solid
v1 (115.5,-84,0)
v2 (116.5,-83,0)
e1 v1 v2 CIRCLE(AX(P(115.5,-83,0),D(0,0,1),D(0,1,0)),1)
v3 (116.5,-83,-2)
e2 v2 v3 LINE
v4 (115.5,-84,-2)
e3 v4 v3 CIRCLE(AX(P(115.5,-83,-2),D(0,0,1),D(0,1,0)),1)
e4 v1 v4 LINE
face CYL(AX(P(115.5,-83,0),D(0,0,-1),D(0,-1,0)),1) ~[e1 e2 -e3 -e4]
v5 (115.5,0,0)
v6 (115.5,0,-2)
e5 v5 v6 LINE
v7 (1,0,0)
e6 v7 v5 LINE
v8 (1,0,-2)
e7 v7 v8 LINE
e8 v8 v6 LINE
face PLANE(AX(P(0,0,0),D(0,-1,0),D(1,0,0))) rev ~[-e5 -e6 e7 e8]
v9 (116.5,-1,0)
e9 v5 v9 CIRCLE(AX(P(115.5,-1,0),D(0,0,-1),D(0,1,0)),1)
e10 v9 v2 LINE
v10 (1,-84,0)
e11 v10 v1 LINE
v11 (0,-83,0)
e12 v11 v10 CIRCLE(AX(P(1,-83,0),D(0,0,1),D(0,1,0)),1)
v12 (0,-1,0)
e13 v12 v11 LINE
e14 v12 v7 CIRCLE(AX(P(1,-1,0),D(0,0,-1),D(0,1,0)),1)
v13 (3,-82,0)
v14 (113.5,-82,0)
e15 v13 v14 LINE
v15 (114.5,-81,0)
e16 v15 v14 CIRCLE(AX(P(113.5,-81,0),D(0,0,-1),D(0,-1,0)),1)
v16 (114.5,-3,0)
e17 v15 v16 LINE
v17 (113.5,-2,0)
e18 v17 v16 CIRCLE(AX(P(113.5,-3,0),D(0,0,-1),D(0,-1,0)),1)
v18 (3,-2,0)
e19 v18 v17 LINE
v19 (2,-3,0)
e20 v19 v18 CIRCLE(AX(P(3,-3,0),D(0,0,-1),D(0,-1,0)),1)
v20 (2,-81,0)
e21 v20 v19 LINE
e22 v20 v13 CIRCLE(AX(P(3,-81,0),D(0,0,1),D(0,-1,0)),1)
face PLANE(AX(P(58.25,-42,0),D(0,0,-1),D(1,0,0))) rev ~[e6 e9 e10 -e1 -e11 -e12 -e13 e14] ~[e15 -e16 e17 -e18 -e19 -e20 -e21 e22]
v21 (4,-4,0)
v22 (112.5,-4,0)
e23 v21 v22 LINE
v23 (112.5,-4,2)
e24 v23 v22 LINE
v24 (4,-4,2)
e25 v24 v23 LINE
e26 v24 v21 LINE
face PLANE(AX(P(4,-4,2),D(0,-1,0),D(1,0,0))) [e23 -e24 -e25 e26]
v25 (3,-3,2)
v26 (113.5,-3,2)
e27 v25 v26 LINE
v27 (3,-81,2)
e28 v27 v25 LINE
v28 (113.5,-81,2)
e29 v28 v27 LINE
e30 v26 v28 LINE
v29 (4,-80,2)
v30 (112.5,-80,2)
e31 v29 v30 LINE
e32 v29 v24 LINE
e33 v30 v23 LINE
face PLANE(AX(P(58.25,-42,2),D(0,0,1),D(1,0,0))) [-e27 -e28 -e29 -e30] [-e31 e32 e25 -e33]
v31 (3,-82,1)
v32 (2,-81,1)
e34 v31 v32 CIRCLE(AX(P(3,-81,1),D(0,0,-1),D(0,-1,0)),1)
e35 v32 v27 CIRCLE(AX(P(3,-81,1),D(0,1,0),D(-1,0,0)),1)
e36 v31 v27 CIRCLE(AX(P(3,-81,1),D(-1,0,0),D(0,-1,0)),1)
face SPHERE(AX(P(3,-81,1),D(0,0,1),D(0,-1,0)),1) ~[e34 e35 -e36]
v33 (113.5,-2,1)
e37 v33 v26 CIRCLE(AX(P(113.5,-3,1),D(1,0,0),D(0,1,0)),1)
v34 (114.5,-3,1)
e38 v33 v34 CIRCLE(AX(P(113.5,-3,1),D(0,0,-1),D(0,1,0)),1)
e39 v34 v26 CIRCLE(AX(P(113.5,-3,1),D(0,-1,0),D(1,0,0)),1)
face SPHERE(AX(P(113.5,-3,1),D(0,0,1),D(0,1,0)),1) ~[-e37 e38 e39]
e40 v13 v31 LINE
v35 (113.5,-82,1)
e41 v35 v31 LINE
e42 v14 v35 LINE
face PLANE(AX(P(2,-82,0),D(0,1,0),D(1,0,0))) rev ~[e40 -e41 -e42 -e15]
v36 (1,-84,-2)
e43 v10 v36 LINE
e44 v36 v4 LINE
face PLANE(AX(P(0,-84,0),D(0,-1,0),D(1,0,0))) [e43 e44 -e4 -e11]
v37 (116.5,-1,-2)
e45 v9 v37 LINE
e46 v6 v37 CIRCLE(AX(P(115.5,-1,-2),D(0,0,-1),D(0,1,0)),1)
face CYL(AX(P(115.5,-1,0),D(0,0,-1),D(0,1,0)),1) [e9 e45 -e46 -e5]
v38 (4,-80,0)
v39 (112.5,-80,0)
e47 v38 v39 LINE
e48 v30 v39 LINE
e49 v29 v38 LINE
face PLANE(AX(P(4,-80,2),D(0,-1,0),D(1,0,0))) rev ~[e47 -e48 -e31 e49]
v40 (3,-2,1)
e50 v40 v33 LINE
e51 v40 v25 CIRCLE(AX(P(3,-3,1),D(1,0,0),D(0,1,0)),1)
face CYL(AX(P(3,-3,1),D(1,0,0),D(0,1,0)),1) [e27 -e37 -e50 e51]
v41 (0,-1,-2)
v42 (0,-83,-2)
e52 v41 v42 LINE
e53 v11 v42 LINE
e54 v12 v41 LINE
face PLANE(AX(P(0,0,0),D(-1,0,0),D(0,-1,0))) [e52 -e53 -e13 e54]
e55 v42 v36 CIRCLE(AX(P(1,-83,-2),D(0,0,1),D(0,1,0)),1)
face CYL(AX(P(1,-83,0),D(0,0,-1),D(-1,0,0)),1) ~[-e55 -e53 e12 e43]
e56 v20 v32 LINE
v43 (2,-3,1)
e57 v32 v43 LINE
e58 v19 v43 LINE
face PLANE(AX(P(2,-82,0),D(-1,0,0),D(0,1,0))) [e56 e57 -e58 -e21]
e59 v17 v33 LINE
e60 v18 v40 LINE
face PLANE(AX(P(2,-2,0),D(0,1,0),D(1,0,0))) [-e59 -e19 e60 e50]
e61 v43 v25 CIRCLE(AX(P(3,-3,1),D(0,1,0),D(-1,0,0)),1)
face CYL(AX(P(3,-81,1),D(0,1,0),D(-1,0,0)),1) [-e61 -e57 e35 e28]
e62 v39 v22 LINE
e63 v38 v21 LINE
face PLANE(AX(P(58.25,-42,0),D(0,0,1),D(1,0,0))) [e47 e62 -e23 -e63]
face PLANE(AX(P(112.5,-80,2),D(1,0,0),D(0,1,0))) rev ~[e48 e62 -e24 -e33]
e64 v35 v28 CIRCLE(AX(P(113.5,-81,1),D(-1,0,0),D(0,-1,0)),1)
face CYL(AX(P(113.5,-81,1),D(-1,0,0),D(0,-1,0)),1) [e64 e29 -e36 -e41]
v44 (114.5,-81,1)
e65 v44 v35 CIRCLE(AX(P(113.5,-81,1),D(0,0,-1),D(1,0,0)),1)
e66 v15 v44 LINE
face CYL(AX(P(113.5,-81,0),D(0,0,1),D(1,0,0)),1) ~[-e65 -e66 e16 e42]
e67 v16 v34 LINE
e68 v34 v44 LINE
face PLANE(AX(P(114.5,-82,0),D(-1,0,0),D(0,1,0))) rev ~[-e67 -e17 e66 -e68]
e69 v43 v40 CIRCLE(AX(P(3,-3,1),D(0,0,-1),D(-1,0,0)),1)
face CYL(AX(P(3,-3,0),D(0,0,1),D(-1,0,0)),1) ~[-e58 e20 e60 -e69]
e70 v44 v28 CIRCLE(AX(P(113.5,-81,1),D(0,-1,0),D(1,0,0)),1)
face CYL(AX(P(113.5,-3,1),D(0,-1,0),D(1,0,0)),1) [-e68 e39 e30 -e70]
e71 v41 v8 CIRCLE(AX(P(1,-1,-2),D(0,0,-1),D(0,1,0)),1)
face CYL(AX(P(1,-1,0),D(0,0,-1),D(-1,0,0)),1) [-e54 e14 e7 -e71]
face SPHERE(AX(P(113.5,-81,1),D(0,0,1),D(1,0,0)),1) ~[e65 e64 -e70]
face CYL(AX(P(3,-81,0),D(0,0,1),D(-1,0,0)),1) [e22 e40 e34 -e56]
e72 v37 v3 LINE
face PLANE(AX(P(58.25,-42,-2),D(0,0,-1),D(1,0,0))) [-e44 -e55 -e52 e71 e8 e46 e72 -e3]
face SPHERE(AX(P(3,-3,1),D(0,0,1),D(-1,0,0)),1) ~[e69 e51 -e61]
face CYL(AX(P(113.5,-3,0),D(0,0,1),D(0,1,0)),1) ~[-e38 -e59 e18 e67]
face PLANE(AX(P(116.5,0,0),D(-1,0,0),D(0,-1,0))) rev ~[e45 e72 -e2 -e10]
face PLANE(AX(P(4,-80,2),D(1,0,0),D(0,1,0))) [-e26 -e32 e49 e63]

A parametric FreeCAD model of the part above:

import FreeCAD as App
import Part
import Sketcher

V = App.Vector
Q = App.Units.Quantity


def edges_at(feature, points):
    """Names of the edges that pass closest to the given points."""
    edges = feature.Shape.Edges
    near = lambda p: min(range(len(edges)), key=lambda i: edges[i].distToShape(Part.Vertex(*p))[0])
    return sorted({f"Edge{near(p) + 1}" for p in points})

doc = App.newDocument("Part")
body = doc.addObject("PartDesign::Body", "Body")

# Sketch on XY plane
sketch1 = body.newObject("Sketcher::SketchObject", "Sketch")
sketch1.AttachmentSupport = (doc.getObject("XY_Plane"), [""])
sketch1.MapMode = "FlatFace"
sketch1.addGeometry(Part.LineSegment(V(0, -84, 0), V(0, 0, 0)), False)
sketch1.addGeometry(Part.LineSegment(V(0, 0, 0), V(116, 0, 0)), False)
sketch1.addGeometry(Part.LineSegment(V(116, 0, 0), V(116, -84, 0)), False)
sketch1.addGeometry(Part.LineSegment(V(116, -84, 0), V(0, -84, 0)), False)
sketch1.addConstraint(Sketcher.Constraint("Coincident", 0, 2, 1, 1))
sketch1.addConstraint(Sketcher.Constraint("Coincident", 1, 2, 2, 1))
sketch1.addConstraint(Sketcher.Constraint("Coincident", 2, 2, 3, 1))
sketch1.addConstraint(Sketcher.Constraint("Coincident", 3, 2, 0, 1))
sketch1.addConstraint(Sketcher.Constraint("Vertical", 0))
sketch1.addConstraint(Sketcher.Constraint("Horizontal", 1))
sketch1.addConstraint(Sketcher.Constraint("Vertical", 2))
sketch1.addConstraint(Sketcher.Constraint("Horizontal", 3))
sketch1.addConstraint(Sketcher.Constraint("Coincident", 0, 2, -1, 1))
sketch1.addConstraint(Sketcher.Constraint("DistanceY", 0, 1, 0, 2, Q("84 mm")))
sketch1.addConstraint(Sketcher.Constraint("DistanceX", 1, 1, 1, 2, Q("116.5 mm")))
pad1 = body.newObject("PartDesign::Pad", "Pad")
pad1.Profile = sketch1
pad1.Length = 2
pad1.Reversed = True

# Sketch on XY plane
sketch2 = body.newObject("Sketcher::SketchObject", "Sketch001")
sketch2.AttachmentSupport = (doc.getObject("XY_Plane"), [""])
sketch2.MapMode = "FlatFace"
sketch2.addGeometry(Part.LineSegment(V(2, -2, 0), V(2, -82, 0)), False)
sketch2.addGeometry(Part.LineSegment(V(2, -82, 0), V(114, -82, 0)), False)
sketch2.addGeometry(Part.LineSegment(V(114, -82, 0), V(114, -2, 0)), False)
sketch2.addGeometry(Part.LineSegment(V(114, -2, 0), V(2, -2, 0)), False)
sketch2.addConstraint(Sketcher.Constraint("Coincident", 0, 2, 1, 1))
sketch2.addConstraint(Sketcher.Constraint("Coincident", 1, 2, 2, 1))
sketch2.addConstraint(Sketcher.Constraint("Coincident", 2, 2, 3, 1))
sketch2.addConstraint(Sketcher.Constraint("Coincident", 3, 2, 0, 1))
sketch2.addConstraint(Sketcher.Constraint("Vertical", 0))
sketch2.addConstraint(Sketcher.Constraint("Horizontal", 1))
sketch2.addConstraint(Sketcher.Constraint("Vertical", 2))
sketch2.addConstraint(Sketcher.Constraint("Horizontal", 3))
sketch2.addConstraint(Sketcher.Constraint("DistanceY", 0, 2, 0, 1, Q("80 mm")))
sketch2.addConstraint(Sketcher.Constraint("DistanceX", 1, 1, 1, 2, Q("112.5 mm")))
sketch2.addConstraint(Sketcher.Constraint("DistanceX", -1, 1, 0, 2, Q("2 mm")))
sketch2.addConstraint(Sketcher.Constraint("DistanceY", 0, 2, -1, 1, Q("82 mm")))
pad2 = body.newObject("PartDesign::Pad", "Pad001")
pad2.Profile = sketch2
pad2.Length = 2

# Sketch on XY plane
sketch3 = body.newObject("Sketcher::SketchObject", "Sketch002")
sketch3.AttachmentSupport = (doc.getObject("XY_Plane"), [""])
sketch3.MapMode = "FlatFace"
sketch3.AttachmentOffset = App.Placement(V(0, 0, 2), App.Rotation())
sketch3.addGeometry(Part.LineSegment(V(4, -4, 0), V(4, -80, 0)), False)
sketch3.addGeometry(Part.LineSegment(V(4, -80, 0), V(112, -80, 0)), False)
sketch3.addGeometry(Part.LineSegment(V(112, -80, 0), V(112, -4, 0)), False)
sketch3.addGeometry(Part.LineSegment(V(112, -4, 0), V(4, -4, 0)), False)
sketch3.addConstraint(Sketcher.Constraint("Coincident", 0, 2, 1, 1))
sketch3.addConstraint(Sketcher.Constraint("Coincident", 1, 2, 2, 1))
sketch3.addConstraint(Sketcher.Constraint("Coincident", 2, 2, 3, 1))
sketch3.addConstraint(Sketcher.Constraint("Coincident", 3, 2, 0, 1))
sketch3.addConstraint(Sketcher.Constraint("Vertical", 0))
sketch3.addConstraint(Sketcher.Constraint("Horizontal", 1))
sketch3.addConstraint(Sketcher.Constraint("Vertical", 2))
sketch3.addConstraint(Sketcher.Constraint("Horizontal", 3))
sketch3.addConstraint(Sketcher.Constraint("DistanceY", 0, 2, 0, 1, Q("76 mm")))
sketch3.addConstraint(Sketcher.Constraint("DistanceX", 1, 1, 1, 2, Q("108.5 mm")))
sketch3.addConstraint(Sketcher.Constraint("DistanceX", -1, 1, 0, 2, Q("4 mm")))
sketch3.addConstraint(Sketcher.Constraint("DistanceY", 0, 2, -1, 1, Q("80 mm")))
pocket1 = body.newObject("PartDesign::Pocket", "Pocket")
pocket1.Profile = sketch3
pocket1.Length = 2
doc.recompute()

fillet = body.newObject("PartDesign::Fillet", "Fillet")
fillet.Base = (pocket1, edges_at(pocket1, [
    (0, 0, -1),
    (116.5, 0, -1),
    (0, -84, -1),
    (116.5, -84, -1),
    (114.5, -82, 1),
    (2, -82, 1),
    (114.5, -2, 1),
    (2, -2, 1),
]))
fillet.Radius = 1
doc.recompute()

fillet2 = body.newObject("PartDesign::Fillet", "Fillet001")
fillet2.Base = (fillet, edges_at(fillet, [(58.25, -2, 2)]))
fillet2.Radius = 1

doc.recompute()
